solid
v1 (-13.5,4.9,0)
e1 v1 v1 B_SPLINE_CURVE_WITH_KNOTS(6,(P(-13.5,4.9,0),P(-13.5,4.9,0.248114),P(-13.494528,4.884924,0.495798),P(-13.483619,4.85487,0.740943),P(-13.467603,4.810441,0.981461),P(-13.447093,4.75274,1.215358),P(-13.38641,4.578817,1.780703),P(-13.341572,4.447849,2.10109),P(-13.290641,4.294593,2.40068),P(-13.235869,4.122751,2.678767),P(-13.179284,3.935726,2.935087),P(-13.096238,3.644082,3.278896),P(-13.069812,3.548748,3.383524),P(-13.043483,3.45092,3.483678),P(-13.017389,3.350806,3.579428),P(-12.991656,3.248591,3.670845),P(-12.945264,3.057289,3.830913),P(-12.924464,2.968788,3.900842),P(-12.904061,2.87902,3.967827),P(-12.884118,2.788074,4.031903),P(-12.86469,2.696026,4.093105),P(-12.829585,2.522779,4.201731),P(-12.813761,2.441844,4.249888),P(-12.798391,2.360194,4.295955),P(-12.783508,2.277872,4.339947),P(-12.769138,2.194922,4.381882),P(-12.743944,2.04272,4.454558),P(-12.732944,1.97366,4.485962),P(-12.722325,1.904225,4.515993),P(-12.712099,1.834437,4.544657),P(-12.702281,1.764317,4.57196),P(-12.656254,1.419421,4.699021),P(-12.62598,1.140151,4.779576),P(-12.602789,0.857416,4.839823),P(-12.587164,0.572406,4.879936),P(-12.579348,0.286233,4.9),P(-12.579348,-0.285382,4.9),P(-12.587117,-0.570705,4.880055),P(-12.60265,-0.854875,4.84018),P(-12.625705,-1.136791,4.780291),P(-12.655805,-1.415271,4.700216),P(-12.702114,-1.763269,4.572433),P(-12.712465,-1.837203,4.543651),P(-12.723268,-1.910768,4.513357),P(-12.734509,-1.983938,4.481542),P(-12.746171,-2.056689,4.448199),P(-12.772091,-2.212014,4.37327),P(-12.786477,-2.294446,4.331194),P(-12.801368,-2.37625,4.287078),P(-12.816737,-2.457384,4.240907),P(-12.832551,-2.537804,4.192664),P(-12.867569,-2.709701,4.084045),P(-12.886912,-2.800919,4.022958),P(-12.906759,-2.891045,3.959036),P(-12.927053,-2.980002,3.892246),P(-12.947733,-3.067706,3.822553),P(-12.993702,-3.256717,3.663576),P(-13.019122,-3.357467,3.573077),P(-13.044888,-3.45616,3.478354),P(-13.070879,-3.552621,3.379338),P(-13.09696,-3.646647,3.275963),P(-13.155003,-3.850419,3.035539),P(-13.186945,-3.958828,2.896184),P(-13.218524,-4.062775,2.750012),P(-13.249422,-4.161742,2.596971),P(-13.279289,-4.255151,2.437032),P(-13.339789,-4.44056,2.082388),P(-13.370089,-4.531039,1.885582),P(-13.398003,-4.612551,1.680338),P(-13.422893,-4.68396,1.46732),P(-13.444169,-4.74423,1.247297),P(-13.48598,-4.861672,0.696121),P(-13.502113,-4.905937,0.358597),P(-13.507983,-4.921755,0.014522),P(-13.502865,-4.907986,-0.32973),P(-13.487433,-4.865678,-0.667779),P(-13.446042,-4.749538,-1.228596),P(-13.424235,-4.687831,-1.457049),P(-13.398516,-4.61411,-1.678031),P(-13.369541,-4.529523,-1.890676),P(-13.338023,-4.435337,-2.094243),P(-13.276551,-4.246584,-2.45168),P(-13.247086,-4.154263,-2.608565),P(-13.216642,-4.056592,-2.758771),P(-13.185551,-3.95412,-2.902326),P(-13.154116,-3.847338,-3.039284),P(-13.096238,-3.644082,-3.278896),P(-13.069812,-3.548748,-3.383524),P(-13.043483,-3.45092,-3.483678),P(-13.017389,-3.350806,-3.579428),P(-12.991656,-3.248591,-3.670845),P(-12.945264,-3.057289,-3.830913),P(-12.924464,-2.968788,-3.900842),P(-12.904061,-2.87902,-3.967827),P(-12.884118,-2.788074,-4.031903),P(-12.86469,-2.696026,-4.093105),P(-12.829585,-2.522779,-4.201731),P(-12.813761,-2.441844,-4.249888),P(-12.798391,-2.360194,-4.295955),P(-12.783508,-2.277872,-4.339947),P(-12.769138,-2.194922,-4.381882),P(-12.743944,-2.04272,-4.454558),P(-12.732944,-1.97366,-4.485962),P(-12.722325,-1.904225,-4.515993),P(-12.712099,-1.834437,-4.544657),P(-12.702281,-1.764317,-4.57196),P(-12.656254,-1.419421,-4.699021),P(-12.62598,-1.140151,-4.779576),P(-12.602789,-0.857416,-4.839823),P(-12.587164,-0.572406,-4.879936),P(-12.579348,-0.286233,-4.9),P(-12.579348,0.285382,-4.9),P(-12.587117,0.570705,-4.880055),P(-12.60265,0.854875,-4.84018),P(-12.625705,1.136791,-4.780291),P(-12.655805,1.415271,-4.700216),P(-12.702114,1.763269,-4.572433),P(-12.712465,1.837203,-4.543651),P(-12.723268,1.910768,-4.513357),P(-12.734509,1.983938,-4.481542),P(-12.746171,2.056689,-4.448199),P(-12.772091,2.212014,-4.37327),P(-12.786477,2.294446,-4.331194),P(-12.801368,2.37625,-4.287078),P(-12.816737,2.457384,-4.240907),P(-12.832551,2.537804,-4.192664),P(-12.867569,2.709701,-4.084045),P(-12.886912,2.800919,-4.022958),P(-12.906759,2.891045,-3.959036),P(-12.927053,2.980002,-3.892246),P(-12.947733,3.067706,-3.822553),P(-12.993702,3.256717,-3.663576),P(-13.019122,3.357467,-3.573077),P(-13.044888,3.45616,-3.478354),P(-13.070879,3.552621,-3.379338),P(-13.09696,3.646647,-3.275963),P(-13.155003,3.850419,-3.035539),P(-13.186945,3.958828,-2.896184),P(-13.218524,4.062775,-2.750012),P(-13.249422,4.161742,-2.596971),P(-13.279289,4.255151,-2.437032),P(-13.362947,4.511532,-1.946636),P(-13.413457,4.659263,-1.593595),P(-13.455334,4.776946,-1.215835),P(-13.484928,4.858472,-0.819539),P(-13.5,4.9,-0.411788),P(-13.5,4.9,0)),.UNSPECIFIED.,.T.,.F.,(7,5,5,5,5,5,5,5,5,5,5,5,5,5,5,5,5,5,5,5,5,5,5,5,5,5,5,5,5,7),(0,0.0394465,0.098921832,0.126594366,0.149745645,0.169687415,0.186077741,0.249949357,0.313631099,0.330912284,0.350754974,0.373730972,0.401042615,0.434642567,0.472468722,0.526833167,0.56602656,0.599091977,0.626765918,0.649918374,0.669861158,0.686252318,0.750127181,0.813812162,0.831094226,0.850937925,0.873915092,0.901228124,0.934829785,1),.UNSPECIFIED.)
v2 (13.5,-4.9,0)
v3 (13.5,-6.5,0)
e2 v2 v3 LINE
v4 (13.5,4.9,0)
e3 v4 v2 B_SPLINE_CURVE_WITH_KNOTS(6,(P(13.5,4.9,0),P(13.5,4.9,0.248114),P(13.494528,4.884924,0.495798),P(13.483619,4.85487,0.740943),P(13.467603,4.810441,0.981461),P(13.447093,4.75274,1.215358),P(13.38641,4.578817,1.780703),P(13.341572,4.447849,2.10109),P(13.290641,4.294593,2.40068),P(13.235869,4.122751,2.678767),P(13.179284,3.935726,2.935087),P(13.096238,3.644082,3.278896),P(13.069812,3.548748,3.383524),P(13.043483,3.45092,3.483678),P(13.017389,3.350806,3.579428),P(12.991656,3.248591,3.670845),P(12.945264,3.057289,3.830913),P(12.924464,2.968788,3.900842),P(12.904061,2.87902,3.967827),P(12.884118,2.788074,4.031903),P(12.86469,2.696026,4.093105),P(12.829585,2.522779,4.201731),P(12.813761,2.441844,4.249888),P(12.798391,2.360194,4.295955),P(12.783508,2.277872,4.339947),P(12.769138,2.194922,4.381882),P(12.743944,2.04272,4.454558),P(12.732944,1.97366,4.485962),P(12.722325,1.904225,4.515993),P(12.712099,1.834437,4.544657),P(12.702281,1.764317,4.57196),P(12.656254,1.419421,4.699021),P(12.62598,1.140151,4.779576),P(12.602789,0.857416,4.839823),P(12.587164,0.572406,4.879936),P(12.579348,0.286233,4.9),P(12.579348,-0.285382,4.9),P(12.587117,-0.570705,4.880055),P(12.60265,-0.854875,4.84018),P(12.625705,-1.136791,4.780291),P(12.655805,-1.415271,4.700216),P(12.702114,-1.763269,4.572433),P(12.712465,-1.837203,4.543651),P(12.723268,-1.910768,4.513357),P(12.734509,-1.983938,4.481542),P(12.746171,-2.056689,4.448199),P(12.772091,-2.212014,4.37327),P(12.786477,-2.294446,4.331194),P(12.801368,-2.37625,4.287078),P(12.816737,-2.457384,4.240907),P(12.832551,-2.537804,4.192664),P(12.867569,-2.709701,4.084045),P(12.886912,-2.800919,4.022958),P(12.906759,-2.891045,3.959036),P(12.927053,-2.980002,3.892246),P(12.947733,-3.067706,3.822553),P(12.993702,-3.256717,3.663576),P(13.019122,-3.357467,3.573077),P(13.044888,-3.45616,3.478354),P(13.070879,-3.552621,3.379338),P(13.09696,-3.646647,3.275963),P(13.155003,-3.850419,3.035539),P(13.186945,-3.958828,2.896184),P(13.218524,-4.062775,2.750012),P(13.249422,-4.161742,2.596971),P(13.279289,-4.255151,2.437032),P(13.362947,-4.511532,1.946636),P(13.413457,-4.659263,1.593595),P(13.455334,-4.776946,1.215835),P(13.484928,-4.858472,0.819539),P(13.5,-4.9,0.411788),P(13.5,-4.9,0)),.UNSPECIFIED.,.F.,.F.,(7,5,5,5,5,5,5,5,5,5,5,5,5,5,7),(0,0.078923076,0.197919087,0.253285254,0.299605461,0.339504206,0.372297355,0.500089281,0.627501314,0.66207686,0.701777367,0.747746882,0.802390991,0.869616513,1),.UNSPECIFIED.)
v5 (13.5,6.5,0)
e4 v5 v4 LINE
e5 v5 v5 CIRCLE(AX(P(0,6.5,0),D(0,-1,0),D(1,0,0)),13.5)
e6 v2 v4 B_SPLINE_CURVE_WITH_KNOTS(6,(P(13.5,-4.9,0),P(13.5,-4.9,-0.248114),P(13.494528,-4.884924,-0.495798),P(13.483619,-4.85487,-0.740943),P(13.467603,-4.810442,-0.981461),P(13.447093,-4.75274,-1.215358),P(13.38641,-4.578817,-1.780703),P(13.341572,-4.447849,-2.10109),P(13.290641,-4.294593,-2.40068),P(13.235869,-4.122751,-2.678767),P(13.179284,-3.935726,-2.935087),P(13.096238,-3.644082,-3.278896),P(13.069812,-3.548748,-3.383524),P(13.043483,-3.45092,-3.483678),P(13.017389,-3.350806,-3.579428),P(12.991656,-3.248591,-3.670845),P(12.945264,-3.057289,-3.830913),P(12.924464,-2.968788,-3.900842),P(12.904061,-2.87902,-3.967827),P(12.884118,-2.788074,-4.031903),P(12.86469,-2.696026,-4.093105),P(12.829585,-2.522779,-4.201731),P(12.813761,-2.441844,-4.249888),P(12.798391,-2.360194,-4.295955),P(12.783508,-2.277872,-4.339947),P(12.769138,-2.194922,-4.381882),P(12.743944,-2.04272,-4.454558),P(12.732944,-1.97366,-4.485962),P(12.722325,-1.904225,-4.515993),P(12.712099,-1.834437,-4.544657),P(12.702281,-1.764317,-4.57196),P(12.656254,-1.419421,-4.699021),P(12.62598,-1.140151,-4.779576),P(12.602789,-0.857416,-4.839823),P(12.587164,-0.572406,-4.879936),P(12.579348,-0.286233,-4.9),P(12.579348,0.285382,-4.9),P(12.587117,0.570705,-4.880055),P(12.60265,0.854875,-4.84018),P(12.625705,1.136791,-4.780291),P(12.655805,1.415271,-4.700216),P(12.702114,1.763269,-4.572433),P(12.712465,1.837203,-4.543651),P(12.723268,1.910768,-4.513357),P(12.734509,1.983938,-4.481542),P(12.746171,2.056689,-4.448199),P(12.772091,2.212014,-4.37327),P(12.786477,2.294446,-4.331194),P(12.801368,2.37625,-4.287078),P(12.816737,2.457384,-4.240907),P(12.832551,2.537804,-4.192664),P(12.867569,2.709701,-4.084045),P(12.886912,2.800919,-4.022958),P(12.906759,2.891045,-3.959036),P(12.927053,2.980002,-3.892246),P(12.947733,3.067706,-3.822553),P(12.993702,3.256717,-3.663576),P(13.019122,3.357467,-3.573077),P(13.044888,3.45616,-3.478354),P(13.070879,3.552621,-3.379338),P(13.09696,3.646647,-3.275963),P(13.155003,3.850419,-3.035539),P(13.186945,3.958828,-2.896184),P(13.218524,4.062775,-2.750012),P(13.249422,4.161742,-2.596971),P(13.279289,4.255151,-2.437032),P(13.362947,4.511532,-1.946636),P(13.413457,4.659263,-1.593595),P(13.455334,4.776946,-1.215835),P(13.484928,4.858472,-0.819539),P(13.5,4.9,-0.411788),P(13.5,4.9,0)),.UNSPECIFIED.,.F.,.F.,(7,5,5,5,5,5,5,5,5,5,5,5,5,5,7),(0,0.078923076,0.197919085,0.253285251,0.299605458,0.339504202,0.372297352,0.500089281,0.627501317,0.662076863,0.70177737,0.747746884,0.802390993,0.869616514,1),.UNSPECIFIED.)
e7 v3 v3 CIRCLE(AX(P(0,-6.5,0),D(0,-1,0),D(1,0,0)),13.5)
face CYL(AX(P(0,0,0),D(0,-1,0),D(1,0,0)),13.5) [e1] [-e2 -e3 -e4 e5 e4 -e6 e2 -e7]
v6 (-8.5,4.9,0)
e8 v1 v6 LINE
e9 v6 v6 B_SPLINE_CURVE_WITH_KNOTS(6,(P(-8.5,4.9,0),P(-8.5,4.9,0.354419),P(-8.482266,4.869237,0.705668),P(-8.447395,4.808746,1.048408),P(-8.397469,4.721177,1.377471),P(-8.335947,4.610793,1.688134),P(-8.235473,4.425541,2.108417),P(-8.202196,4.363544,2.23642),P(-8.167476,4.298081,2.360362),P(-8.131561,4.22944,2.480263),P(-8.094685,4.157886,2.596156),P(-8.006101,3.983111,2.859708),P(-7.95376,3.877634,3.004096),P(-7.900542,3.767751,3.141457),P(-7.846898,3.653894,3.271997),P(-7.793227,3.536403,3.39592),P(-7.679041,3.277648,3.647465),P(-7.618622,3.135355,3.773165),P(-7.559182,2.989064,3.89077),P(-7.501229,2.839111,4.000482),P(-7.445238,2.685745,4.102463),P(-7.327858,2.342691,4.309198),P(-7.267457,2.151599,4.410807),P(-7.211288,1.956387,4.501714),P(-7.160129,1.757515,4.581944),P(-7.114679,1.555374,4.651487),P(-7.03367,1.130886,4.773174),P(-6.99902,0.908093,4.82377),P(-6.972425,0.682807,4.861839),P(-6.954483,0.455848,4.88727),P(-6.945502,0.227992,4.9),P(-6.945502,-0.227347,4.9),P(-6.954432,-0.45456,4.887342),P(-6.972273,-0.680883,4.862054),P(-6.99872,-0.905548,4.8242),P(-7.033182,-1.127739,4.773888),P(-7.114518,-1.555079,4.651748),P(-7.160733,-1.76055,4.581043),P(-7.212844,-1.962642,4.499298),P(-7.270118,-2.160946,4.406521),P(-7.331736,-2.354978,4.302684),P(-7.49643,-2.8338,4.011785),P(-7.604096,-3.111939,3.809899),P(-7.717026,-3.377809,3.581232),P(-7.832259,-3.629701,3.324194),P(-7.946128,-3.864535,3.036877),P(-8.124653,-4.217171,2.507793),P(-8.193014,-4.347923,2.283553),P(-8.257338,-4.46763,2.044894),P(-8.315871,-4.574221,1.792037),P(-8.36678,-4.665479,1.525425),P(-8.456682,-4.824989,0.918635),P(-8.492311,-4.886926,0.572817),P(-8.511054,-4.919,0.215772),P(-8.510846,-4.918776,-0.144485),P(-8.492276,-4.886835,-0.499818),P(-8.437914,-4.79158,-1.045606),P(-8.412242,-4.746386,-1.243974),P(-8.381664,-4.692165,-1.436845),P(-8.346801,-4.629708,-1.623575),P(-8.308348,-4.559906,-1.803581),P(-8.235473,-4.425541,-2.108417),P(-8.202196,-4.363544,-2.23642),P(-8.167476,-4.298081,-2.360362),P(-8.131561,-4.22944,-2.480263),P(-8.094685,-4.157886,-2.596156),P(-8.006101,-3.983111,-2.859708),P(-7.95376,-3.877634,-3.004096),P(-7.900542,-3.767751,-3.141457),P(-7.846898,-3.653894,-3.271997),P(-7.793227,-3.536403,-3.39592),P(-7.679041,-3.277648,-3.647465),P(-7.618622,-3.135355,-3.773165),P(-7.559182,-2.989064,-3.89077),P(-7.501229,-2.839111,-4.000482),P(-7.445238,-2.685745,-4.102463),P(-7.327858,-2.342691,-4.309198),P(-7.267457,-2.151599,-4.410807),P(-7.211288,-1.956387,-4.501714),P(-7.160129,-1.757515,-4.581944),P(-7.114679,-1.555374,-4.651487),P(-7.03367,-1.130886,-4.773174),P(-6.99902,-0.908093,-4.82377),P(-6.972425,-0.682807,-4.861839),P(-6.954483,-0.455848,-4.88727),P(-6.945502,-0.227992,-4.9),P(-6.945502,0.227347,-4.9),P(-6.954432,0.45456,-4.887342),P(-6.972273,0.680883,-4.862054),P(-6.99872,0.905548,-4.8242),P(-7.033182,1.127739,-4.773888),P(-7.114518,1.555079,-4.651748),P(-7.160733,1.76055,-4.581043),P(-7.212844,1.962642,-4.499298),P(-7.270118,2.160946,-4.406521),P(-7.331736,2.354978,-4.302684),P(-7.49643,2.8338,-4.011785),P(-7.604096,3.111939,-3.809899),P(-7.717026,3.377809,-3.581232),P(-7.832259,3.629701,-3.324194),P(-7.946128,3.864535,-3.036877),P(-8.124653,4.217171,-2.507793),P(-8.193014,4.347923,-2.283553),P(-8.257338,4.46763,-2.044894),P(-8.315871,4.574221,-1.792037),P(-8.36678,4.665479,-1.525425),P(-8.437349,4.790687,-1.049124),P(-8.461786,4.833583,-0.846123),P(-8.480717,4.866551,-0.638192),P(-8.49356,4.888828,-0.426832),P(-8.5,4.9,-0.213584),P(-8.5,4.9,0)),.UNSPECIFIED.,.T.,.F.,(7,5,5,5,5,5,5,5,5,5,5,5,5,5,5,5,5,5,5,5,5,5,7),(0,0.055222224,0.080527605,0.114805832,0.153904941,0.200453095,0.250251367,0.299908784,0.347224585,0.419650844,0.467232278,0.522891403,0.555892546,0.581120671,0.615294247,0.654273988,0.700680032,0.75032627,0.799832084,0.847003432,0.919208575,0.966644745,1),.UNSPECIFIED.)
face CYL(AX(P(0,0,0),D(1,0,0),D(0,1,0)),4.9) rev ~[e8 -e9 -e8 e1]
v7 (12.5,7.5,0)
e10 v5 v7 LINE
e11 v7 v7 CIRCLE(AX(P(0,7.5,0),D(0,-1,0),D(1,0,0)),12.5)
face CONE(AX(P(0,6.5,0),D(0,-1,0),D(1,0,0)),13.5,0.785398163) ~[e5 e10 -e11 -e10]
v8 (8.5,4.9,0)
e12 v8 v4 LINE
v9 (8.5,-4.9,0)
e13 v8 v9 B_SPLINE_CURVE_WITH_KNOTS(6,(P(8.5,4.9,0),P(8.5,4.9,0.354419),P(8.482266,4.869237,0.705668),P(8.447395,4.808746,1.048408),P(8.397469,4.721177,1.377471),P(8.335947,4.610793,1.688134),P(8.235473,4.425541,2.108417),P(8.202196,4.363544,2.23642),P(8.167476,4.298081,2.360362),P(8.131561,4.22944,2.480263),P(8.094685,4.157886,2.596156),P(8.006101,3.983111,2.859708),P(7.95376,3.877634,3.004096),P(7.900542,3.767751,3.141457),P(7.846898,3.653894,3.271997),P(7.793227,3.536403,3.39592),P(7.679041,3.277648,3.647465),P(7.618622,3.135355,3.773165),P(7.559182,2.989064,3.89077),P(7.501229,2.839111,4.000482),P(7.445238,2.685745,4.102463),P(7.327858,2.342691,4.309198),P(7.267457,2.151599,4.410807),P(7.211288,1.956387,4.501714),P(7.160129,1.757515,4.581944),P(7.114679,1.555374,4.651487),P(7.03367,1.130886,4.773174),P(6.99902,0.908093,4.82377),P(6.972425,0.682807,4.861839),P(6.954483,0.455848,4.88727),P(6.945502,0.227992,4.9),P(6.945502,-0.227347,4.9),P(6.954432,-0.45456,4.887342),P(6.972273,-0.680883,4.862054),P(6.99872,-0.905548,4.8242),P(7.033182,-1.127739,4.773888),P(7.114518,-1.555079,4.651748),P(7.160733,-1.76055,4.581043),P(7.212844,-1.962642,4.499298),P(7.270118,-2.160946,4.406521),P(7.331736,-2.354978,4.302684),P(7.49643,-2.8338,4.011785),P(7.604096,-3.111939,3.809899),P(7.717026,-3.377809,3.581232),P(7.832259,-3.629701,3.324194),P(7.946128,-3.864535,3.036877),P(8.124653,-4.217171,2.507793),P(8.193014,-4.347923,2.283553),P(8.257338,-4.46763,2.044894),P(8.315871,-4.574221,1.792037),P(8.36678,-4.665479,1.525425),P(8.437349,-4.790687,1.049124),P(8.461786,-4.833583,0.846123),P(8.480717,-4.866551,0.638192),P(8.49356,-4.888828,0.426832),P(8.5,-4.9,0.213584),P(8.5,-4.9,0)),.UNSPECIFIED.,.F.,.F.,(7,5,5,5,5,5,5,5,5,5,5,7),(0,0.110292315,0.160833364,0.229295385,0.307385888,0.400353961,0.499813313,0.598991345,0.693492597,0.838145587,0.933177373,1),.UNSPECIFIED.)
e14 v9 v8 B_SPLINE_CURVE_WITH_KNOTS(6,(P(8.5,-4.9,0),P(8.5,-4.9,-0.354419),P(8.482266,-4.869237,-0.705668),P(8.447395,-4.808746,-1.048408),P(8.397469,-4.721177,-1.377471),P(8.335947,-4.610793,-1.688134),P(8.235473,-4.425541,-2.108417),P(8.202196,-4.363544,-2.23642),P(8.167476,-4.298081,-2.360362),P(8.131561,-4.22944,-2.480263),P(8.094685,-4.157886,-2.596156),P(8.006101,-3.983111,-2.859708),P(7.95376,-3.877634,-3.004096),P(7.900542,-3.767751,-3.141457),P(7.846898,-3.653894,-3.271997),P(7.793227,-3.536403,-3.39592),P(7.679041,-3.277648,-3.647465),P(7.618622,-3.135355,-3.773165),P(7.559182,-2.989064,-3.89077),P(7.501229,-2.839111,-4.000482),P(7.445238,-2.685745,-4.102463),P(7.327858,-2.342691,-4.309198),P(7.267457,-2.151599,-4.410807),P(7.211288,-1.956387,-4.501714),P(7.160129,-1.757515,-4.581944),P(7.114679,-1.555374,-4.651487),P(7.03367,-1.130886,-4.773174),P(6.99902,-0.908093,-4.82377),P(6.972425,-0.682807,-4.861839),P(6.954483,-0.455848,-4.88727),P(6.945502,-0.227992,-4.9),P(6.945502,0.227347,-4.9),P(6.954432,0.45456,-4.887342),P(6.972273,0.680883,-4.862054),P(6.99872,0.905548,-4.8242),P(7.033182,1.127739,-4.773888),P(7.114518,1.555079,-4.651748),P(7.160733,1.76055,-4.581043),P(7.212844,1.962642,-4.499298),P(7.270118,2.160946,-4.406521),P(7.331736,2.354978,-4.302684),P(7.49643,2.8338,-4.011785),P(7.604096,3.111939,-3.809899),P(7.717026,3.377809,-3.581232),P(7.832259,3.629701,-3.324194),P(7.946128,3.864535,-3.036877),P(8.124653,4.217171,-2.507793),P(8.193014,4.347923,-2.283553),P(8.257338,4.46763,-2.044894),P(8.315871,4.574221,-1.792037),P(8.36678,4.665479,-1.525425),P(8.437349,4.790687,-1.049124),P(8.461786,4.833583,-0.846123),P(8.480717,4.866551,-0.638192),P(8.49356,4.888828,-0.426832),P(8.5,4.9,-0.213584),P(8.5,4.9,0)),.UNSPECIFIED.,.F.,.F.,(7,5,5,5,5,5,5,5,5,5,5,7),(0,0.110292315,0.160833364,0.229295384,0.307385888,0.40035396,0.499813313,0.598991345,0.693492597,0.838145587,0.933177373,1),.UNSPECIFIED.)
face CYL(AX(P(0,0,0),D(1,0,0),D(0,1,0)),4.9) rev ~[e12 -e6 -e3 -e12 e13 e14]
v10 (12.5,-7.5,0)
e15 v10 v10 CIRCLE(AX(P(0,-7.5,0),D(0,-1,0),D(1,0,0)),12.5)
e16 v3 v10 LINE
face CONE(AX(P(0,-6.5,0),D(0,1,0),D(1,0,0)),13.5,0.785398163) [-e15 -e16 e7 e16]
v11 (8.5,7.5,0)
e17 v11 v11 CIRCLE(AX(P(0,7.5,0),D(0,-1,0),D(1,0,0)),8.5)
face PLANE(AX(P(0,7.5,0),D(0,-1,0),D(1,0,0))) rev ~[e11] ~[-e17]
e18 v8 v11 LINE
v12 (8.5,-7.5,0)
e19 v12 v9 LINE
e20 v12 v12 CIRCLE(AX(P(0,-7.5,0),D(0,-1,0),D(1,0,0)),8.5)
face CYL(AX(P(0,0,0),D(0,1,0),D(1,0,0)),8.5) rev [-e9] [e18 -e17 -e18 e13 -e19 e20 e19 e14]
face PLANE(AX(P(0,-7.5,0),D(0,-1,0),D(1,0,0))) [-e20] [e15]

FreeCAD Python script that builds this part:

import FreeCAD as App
import Part
import Sketcher
from FreeCAD import Vector


def edges_at(feature, points):
    """Names of the edges that pass closest to the given points."""
    edges = feature.Shape.Edges
    near = lambda p: min(range(len(edges)), key=lambda i: edges[i].distToShape(Part.Vertex(*p))[0])
    return sorted({f"Edge{near(p) + 1}" for p in points})

doc = App.newDocument("Part")
body = doc.addObject("PartDesign::Body", "Body")

sketch1 = body.newObject("Sketcher::SketchObject", "Sketch")
sketch1.AttachmentSupport = (doc.getObject("XZ_Plane"), [""])
sketch1.MapMode = "FlatFace"
sketch1.addGeometry([
    Part.Circle(Vector(0, 0, 0), Vector(0, 0, 1), 14),
    Part.Circle(Vector(0, 0, 0), Vector(0, 0, 1), 8),
], False)
sketch1.addConstraint([
    Sketcher.Constraint("Coincident", 0, 3, -1, 1),
    Sketcher.Constraint("Coincident", 1, 3, -1, 1),
    Sketcher.Constraint("Diameter", 0, 27.0),
    Sketcher.Constraint("Diameter", 1, 17.0),
])
pad1 = body.newObject("PartDesign::Pad", "Pad")
pad1.Profile = sketch1
pad1.Length = 15
pad1.Midplane = True

sketch2 = body.newObject("Sketcher::SketchObject", "Sketch001")
sketch2.AttachmentSupport = (doc.getObject("YZ_Plane"), [""])
sketch2.MapMode = "FlatFace"
sketch2.addGeometry(Part.Circle(Vector(0, 0, 0), Vector(0, 0, 1), 4.9), False)
sketch2.addConstraint([
    Sketcher.Constraint("Coincident", 0, 3, -1, 1),
    Sketcher.Constraint("Diameter", 0, 9.8),
])
pocket1 = body.newObject("PartDesign::Pocket", "Pocket")
pocket1.Profile = sketch2
pocket1.Length = 30
pocket1.Midplane = True
doc.recompute()

chamfer = body.newObject("PartDesign::Chamfer", "Chamfer")
chamfer.Base = (pocket1, edges_at(pocket1, [(-13.5, -7.5, 0), (-13.5, 7.5, 0)]))
chamfer.Size = 1

doc.recompute()
